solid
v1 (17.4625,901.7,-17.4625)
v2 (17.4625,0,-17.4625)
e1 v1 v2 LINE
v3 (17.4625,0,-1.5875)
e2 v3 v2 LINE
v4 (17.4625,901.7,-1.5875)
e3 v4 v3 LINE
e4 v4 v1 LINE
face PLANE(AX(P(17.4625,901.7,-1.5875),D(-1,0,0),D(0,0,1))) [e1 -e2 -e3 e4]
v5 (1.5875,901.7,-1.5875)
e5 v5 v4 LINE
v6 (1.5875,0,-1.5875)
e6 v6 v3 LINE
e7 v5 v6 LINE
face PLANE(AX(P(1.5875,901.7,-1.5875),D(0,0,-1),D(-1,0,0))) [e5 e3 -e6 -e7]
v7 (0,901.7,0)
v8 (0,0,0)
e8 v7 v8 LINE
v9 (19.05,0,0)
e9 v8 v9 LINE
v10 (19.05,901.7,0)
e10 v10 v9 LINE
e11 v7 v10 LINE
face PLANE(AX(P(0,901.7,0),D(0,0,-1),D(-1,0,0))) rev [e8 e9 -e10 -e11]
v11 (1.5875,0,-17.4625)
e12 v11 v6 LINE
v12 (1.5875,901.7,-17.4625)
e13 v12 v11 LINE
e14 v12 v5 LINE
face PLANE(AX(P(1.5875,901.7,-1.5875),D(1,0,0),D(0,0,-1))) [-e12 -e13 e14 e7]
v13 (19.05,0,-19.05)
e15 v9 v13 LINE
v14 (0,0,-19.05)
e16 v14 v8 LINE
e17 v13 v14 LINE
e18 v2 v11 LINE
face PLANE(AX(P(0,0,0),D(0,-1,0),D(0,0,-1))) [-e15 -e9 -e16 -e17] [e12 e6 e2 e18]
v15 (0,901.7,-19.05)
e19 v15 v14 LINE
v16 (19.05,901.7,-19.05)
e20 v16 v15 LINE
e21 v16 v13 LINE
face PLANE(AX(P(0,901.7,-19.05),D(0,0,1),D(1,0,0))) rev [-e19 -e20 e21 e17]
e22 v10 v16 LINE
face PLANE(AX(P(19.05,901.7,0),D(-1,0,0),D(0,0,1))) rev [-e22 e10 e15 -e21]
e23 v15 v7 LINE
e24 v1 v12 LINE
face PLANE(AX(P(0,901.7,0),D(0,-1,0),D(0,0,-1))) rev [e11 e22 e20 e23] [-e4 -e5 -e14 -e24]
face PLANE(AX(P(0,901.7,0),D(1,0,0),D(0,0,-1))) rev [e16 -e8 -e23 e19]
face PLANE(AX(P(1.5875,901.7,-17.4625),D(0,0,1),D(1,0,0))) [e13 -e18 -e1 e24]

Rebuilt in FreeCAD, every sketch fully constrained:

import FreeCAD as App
import Part
import Sketcher
Q = App.Units.Quantity

doc = App.newDocument("Part")
body = doc.addObject("PartDesign::Body", "Body")

sketch1 = body.newObject("Sketcher::SketchObject", "Sketch")
sketch1.AttachmentSupport = (doc.getObject("XZ_Plane"), [""])
sketch1.MapMode = "FlatFace"
sketch1.addGeometry([
    Part.LineSegment(App.Vector(0, -19, 0), App.Vector(0, 0, 0)),
    Part.LineSegment(App.Vector(0, 0, 0), App.Vector(19, 0, 0)),
    Part.LineSegment(App.Vector(19, 0, 0), App.Vector(19, -19, 0)),
    Part.LineSegment(App.Vector(19, -19, 0), App.Vector(0, -19, 0)),
    Part.LineSegment(App.Vector(17, -2, 0), App.Vector(2, -2, 0)),
    Part.LineSegment(App.Vector(2, -2, 0), App.Vector(2, -17, 0)),
    Part.LineSegment(App.Vector(2, -17, 0), App.Vector(17, -17, 0)),
    Part.LineSegment(App.Vector(17, -17, 0), App.Vector(17, -2, 0)),
], False)
sketch1.addConstraint([
    Sketcher.Constraint("Coincident", 0, 2, 1, 1),
    Sketcher.Constraint("Coincident", 1, 2, 2, 1),
    Sketcher.Constraint("Coincident", 2, 2, 3, 1),
    Sketcher.Constraint("Coincident", 3, 2, 0, 1),
    Sketcher.Constraint("Coincident", 4, 2, 5, 1),
    Sketcher.Constraint("Coincident", 5, 2, 6, 1),
    Sketcher.Constraint("Coincident", 6, 2, 7, 1),
    Sketcher.Constraint("Coincident", 7, 2, 4, 1),
    Sketcher.Constraint("Vertical", 0),
    Sketcher.Constraint("Horizontal", 1),
    Sketcher.Constraint("Vertical", 2),
    Sketcher.Constraint("Horizontal", 3),
    Sketcher.Constraint("Horizontal", 4),
    Sketcher.Constraint("Vertical", 5),
    Sketcher.Constraint("Horizontal", 6),
    Sketcher.Constraint("Vertical", 7),
    Sketcher.Constraint("Coincident", 0, 2, -1, 1),
    Sketcher.Constraint("Equal", 3, 0),
    Sketcher.Constraint("Equal", 6, 5),
    Sketcher.Constraint("DistanceX", 1, 1, 1, 2, Q("0.75 in")),
    Sketcher.Constraint("DistanceX", 4, 2, 4, 1, Q("0.625 in")),
    Sketcher.Constraint("DistanceX", -1, 1, 4, 2, Q("0.0625 in")),
    Sketcher.Constraint("DistanceY", 4, 2, -1, 1, Q("0.0625 in")),
])
pad1 = body.newObject("PartDesign::Pad", "Pad")
pad1.Profile = sketch1
pad1.Length = Q("35.5 in")
pad1.Reversed = True

doc.recompute()
